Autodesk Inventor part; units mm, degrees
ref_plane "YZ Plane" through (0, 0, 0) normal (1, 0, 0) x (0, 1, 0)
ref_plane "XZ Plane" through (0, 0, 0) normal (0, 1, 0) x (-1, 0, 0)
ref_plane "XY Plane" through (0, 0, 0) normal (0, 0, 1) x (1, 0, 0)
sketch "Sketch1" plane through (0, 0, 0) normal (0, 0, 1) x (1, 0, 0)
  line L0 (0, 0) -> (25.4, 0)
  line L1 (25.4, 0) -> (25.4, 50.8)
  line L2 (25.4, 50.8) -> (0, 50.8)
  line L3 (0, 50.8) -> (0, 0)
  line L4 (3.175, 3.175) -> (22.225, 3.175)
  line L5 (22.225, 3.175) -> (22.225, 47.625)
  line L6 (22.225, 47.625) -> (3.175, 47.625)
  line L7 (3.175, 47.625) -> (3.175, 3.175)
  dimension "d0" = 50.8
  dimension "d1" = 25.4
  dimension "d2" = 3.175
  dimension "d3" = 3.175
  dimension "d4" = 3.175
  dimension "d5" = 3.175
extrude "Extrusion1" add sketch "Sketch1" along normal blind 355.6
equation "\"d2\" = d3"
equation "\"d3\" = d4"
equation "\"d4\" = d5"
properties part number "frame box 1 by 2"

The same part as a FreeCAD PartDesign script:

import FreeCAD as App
import Part
import Sketcher

V = App.Vector
Q = App.Units.Quantity

doc = App.newDocument("Part")
body = doc.addObject("PartDesign::Body", "Body")

sketch1 = doc.addObject("Sketcher::SketchObject", "Sketch")
body.addObject(sketch1)
sketch1.AttachmentSupport = (doc.XY_Plane, [""])
sketch1.MapMode = "FlatFace"
sketch1.addGeometry([
    Part.LineSegment(V(0, 51, 0), V(0, 0, 0)),
    Part.LineSegment(V(0, 0, 0), V(25, 0, 0)),
    Part.LineSegment(V(25, 0, 0), V(25, 51, 0)),
    Part.LineSegment(V(25, 51, 0), V(0, 51, 0)),
    Part.LineSegment(V(22, 3, 0), V(3, 3, 0)),
    Part.LineSegment(V(3, 3, 0), V(3, 48, 0)),
    Part.LineSegment(V(3, 48, 0), V(22, 48, 0)),
    Part.LineSegment(V(22, 48, 0), V(22, 3, 0)),
], False)
sketch1.addConstraint([
    Sketcher.Constraint("Coincident", 0, 2, 1, 1),
    Sketcher.Constraint("Coincident", 1, 2, 2, 1),
    Sketcher.Constraint("Coincident", 2, 2, 3, 1),
    Sketcher.Constraint("Coincident", 3, 2, 0, 1),
    Sketcher.Constraint("Coincident", 4, 2, 5, 1),
    Sketcher.Constraint("Coincident", 5, 2, 6, 1),
    Sketcher.Constraint("Coincident", 6, 2, 7, 1),
    Sketcher.Constraint("Coincident", 7, 2, 4, 1),
    Sketcher.Constraint("Vertical", 0),
    Sketcher.Constraint("Horizontal", 1),
    Sketcher.Constraint("Vertical", 2),
    Sketcher.Constraint("Horizontal", 3),
    Sketcher.Constraint("Horizontal", 4),
    Sketcher.Constraint("Vertical", 5),
    Sketcher.Constraint("Horizontal", 6),
    Sketcher.Constraint("Vertical", 7),
    Sketcher.Constraint("Coincident", 0, 2, -1, 1),
    Sketcher.Constraint("DistanceX", 1, 1, 1, 2, Q("1 in")),
    Sketcher.Constraint("DistanceY", 0, 2, 0, 1, Q("2 in")),
    Sketcher.Constraint("DistanceX", -1, 1, 4, 2, Q("0.125 in")),
    Sketcher.Constraint("DistanceY", -1, 1, 4, 2, Q("0.125 in")),
    Sketcher.Constraint("DistanceY", 5, 2, 3, 2, Q("0.125 in")),
    Sketcher.Constraint("DistanceX", 6, 2, 2, 2, Q("0.125 in")),
])
pad1 = doc.addObject("PartDesign::Pad", "Pad")
body.addObject(pad1)
pad1.Profile = sketch1
pad1.Length = Q("14 in")

doc.recompute()
